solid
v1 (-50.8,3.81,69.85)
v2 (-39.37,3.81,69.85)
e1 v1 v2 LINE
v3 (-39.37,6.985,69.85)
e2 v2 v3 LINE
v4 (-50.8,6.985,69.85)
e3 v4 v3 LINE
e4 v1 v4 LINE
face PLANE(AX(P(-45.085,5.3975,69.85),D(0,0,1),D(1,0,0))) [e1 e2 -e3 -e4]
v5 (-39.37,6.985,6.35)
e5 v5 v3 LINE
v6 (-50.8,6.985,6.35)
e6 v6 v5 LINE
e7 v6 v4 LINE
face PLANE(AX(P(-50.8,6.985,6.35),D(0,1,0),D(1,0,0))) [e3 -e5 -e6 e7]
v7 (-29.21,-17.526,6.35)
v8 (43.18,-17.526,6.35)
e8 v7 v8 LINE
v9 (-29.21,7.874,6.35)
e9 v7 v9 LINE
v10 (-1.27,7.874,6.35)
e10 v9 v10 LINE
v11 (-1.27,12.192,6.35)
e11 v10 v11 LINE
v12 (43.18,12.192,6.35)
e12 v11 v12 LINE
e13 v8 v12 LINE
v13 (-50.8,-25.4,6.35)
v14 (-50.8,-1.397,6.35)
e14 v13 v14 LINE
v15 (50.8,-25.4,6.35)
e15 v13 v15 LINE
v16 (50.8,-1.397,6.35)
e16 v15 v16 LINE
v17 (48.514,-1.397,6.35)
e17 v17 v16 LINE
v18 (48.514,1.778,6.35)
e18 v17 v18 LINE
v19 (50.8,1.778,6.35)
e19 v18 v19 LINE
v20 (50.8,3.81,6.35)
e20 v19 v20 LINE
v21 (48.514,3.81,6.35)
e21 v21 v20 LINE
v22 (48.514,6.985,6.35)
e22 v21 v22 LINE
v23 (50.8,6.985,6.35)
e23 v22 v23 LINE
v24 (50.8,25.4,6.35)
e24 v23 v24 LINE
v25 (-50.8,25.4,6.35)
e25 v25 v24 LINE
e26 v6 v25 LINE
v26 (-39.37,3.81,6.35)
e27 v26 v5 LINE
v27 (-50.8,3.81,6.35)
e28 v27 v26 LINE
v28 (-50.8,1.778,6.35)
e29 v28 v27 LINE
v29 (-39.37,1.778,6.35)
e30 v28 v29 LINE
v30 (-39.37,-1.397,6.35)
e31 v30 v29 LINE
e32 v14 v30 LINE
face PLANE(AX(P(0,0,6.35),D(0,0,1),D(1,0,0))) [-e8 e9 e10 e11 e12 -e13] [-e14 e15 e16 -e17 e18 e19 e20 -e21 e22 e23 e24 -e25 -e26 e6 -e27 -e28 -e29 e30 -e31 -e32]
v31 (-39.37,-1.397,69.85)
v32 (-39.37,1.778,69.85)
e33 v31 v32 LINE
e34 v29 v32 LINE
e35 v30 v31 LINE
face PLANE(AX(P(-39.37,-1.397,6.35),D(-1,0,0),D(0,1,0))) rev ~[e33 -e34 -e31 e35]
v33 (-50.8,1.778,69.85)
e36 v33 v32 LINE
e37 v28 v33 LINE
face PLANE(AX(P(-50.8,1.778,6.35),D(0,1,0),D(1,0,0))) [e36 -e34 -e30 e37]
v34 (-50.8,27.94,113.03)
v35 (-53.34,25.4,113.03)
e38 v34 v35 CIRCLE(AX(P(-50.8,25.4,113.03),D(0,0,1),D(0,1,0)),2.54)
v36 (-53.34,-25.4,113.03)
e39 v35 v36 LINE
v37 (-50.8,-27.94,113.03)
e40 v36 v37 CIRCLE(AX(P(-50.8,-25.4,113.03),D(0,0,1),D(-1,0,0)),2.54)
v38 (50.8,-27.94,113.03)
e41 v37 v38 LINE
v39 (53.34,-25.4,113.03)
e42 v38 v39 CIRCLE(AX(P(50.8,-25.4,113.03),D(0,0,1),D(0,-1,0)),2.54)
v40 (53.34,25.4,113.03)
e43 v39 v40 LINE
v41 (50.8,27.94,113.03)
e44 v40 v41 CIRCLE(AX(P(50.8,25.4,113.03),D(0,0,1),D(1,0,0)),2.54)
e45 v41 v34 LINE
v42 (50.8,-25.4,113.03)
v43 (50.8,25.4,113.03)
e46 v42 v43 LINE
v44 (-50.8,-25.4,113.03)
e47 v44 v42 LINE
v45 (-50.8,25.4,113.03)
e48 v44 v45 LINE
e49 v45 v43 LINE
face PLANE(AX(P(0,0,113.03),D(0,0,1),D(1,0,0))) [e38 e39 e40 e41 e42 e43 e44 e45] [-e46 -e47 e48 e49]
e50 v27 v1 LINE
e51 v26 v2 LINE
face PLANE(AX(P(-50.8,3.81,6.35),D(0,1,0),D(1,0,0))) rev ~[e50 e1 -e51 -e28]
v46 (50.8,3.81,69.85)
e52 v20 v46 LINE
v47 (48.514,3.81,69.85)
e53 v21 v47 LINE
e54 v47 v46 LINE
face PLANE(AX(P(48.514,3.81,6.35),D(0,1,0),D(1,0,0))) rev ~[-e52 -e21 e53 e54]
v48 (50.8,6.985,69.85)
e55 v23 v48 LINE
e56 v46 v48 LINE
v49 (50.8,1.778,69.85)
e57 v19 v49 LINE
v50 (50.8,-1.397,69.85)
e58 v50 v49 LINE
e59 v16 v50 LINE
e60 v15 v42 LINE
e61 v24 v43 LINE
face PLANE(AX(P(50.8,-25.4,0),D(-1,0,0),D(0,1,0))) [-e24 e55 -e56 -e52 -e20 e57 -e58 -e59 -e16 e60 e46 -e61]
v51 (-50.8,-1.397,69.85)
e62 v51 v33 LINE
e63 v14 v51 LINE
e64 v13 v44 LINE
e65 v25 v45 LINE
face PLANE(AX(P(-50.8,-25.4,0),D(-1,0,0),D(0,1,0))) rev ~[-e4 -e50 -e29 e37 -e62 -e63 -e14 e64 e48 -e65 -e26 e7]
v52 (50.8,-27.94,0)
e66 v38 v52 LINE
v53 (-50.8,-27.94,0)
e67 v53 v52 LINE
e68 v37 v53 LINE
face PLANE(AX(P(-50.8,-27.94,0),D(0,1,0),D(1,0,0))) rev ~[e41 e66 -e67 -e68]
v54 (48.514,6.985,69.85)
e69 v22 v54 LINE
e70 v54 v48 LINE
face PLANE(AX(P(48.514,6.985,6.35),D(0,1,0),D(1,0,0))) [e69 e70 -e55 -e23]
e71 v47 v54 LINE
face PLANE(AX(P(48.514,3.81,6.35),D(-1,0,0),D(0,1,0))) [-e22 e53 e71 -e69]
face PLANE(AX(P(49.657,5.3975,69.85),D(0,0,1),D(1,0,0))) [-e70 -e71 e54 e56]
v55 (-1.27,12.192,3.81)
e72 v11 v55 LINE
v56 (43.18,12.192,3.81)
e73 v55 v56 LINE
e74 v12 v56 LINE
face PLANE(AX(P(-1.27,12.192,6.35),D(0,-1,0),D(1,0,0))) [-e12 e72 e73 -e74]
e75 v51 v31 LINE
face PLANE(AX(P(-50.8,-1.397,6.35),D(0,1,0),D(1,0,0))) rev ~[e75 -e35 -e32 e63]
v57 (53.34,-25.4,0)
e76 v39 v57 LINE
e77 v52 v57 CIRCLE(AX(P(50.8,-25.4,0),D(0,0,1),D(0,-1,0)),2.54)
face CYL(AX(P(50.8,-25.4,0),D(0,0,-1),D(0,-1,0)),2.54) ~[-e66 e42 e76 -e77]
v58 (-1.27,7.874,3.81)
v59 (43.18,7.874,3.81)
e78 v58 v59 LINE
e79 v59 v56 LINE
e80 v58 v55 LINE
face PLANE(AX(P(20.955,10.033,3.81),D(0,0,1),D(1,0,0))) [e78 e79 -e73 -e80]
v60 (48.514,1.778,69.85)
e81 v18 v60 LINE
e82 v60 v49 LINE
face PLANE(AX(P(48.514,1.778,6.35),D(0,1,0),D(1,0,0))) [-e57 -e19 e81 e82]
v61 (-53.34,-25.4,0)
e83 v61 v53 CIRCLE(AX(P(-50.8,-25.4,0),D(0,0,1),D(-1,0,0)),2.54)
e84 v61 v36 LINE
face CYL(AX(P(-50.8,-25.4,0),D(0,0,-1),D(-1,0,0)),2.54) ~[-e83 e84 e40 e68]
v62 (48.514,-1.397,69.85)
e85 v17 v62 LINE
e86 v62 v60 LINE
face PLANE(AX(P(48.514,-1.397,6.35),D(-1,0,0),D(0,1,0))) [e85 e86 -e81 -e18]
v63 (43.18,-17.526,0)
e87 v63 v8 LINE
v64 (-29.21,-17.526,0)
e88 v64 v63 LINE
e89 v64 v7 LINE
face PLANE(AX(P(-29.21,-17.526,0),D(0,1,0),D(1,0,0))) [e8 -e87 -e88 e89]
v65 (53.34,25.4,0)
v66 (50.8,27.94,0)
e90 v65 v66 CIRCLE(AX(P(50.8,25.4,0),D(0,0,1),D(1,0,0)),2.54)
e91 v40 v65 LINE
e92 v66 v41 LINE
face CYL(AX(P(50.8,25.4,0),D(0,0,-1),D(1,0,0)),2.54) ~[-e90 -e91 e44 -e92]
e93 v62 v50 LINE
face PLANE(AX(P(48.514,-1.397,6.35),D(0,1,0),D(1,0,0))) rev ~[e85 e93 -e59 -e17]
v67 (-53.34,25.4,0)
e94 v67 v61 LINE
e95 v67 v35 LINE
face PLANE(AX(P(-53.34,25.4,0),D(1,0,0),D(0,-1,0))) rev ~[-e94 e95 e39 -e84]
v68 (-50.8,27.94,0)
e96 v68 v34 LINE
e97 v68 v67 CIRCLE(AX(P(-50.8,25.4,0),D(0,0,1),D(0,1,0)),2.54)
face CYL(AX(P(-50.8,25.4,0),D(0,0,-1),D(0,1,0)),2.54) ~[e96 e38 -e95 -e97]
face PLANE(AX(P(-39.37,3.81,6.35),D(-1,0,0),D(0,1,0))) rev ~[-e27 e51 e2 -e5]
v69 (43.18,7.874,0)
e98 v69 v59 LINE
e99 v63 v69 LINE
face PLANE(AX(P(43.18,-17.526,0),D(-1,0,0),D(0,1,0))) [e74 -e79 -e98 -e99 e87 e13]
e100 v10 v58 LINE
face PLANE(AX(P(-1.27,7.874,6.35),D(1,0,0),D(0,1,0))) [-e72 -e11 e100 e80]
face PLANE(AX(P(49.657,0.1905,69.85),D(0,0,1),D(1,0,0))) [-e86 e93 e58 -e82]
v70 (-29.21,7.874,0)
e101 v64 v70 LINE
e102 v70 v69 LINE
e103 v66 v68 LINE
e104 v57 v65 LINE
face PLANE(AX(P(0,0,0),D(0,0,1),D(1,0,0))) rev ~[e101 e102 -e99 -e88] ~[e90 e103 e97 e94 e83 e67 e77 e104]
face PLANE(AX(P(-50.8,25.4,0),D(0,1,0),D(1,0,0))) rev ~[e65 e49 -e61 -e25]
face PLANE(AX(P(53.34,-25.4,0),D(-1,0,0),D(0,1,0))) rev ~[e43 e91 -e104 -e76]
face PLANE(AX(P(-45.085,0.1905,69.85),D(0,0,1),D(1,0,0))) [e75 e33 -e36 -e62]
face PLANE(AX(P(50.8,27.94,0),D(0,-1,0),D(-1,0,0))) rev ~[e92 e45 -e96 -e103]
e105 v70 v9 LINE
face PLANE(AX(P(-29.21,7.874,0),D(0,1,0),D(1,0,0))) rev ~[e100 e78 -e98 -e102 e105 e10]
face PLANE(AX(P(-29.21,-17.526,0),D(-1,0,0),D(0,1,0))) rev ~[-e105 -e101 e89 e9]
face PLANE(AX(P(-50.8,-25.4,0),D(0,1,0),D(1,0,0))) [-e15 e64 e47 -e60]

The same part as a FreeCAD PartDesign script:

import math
import FreeCAD as App
import Part
import Sketcher
Q = App.Units.Quantity

doc = App.newDocument("Part")
params = doc.addObject("Spreadsheet::Sheet", "Params")
for row, (alias, value) in enumerate([
    ("sketch1_radius", "0.1 in"),
    ("sketch1_width", "4 in"),
    ("sketch1_height", "2 in"),
    ("pad1_length", "4.45 in"),
    ("sketch2_radius", "0.1 in"),
    ("sketch2_width", "4 in"),
    ("sketch2_height", "2 in"),
    ("sketch2_height2", "1 in"),
    ("sketch2_width2", "2.85 in"),
    ("pad2_length", "0.25 in"),
    ("sketch3_width", "1.75 in"),
    ("sketch3_height", "0.17 in"),
    ("pocket1_length", "0.1 in"),
    ("sketch4_width", "0.45 in"),
    ("sketch4_height", "0.125 in"),
    ("pad3_length", "2.5 in"),
    ("sketch5_width", "0.09 in"),
    ("sketch5_height", "0.125 in"),
    ("pad4_length", "2.5 in"),
], start=1):
    params.set(f"A{row}", alias)
    params.set(f"B{row}", "=" + value)
    params.setAlias(f"B{row}", alias)

body = doc.addObject("PartDesign::Body", "Body")

sketch1 = body.newObject("Sketcher::SketchObject", "Sketch")
sketch1.AttachmentSupport = (doc.getObject("XY_Plane"), [""])
sketch1.MapMode = "FlatFace"
sketch1.addGeometry([
    Part.ArcOfCircle(Part.Circle(App.Vector(50.8, 25.4, 0), App.Vector(0, 0, 1), 2.5), math.radians(0), math.radians(90)),
    Part.LineSegment(App.Vector(50.8, 27.9, 0), App.Vector(-50.8, 27.9, 0)),
    Part.ArcOfCircle(Part.Circle(App.Vector(-50.8, 25.4, 0), App.Vector(0, 0, 1), 2.5), math.radians(90), math.radians(180)),
    Part.LineSegment(App.Vector(-53.3, 25.4, 0), App.Vector(-53.3, -25.4, 0)),
    Part.ArcOfCircle(Part.Circle(App.Vector(-50.8, -25.4, 0), App.Vector(0, 0, 1), 2.5), math.radians(180), math.radians(270)),
    Part.LineSegment(App.Vector(-50.8, -27.9, 0), App.Vector(50.8, -27.9, 0)),
    Part.ArcOfCircle(Part.Circle(App.Vector(50.8, -25.4, 0), App.Vector(0, 0, 1), 2.5), math.radians(-90), math.radians(0)),
    Part.LineSegment(App.Vector(53.3, -25.4, 0), App.Vector(53.3, 25.4, 0)),
    Part.LineSegment(App.Vector(50.8, -25.4, 0), App.Vector(-50.8, -25.4, 0)),
    Part.LineSegment(App.Vector(-50.8, -25.4, 0), App.Vector(-50.8, 25.4, 0)),
    Part.LineSegment(App.Vector(-50.8, 25.4, 0), App.Vector(50.8, 25.4, 0)),
    Part.LineSegment(App.Vector(50.8, 25.4, 0), App.Vector(50.8, -25.4, 0)),
], False)
sketch1.addConstraint([
    Sketcher.Constraint("Tangent", 0, 2, 1, 1),
    Sketcher.Constraint("Tangent", 1, 2, 2, 1),
    Sketcher.Constraint("Tangent", 2, 2, 3, 1),
    Sketcher.Constraint("Tangent", 3, 2, 4, 1),
    Sketcher.Constraint("Tangent", 4, 2, 5, 1),
    Sketcher.Constraint("Tangent", 5, 2, 6, 1),
    Sketcher.Constraint("Tangent", 6, 2, 7, 1),
    Sketcher.Constraint("Tangent", 7, 2, 0, 1),
    Sketcher.Constraint("Coincident", 8, 2, 9, 1),
    Sketcher.Constraint("Coincident", 9, 2, 10, 1),
    Sketcher.Constraint("Coincident", 10, 2, 11, 1),
    Sketcher.Constraint("Coincident", 11, 2, 8, 1),
    Sketcher.Constraint("Horizontal", 1),
    Sketcher.Constraint("Vertical", 3),
    Sketcher.Constraint("Horizontal", 5),
    Sketcher.Constraint("Vertical", 7),
    Sketcher.Constraint("Horizontal", 8),
    Sketcher.Constraint("Vertical", 9),
    Sketcher.Constraint("Horizontal", 10),
    Sketcher.Constraint("Vertical", 11),
    Sketcher.Constraint("Coincident", 8, 2, 4, 3),
    Sketcher.Constraint("Coincident", 9, 2, 2, 3),
    Sketcher.Constraint("Coincident", 10, 2, 0, 3),
    Sketcher.Constraint("Equal", 4, 6),
    Sketcher.Constraint("Symmetric", 0, 3, 4, 3, -1, 1),
    Sketcher.Constraint("Radius", 0, Q("0.1 in")),
    Sketcher.Constraint("DistanceX", 1, 2, 1, 1, Q("4 in")),
    Sketcher.Constraint("DistanceY", 3, 2, 3, 1, Q("2 in")),
])
sketch1.setExpression("Constraints[25]", "Params.sketch1_radius")
sketch1.setExpression("Constraints[26]", "Params.sketch1_width")
sketch1.setExpression("Constraints[27]", "Params.sketch1_height")
pad1 = body.newObject("PartDesign::Pad", "Pad")
pad1.Profile = sketch1
pad1.setExpression("Length", "Params.pad1_length")

sketch2 = body.newObject("Sketcher::SketchObject", "Sketch001")
sketch2.AttachmentSupport = (doc.getObject("XY_Plane"), [""])
sketch2.MapMode = "FlatFace"
sketch2.addGeometry([
    Part.ArcOfCircle(Part.Circle(App.Vector(50.8, 25.4, 0), App.Vector(0, 0, 1), 2.5), math.radians(0), math.radians(90)),
    Part.LineSegment(App.Vector(50.8, 27.9, 0), App.Vector(-50.8, 27.9, 0)),
    Part.ArcOfCircle(Part.Circle(App.Vector(-50.8, 25.4, 0), App.Vector(0, 0, 1), 2.5), math.radians(90), math.radians(180)),
    Part.LineSegment(App.Vector(-53.3, 25.4, 0), App.Vector(-53.3, -25.4, 0)),
    Part.ArcOfCircle(Part.Circle(App.Vector(-50.8, -25.4, 0), App.Vector(0, 0, 1), 2.5), math.radians(180), math.radians(270)),
    Part.LineSegment(App.Vector(-50.8, -27.9, 0), App.Vector(50.8, -27.9, 0)),
    Part.ArcOfCircle(Part.Circle(App.Vector(50.8, -25.4, 0), App.Vector(0, 0, 1), 2.5), math.radians(-90), math.radians(0)),
    Part.LineSegment(App.Vector(53.3, -25.4, 0), App.Vector(53.3, 25.4, 0)),
    Part.LineSegment(App.Vector(43.2, -17.5, 0), App.Vector(-29.2, -17.5, 0)),
    Part.LineSegment(App.Vector(-29.2, -17.5, 0), App.Vector(-29.2, 7.9, 0)),
    Part.LineSegment(App.Vector(-29.2, 7.9, 0), App.Vector(43.2, 7.9, 0)),
    Part.LineSegment(App.Vector(43.2, 7.9, 0), App.Vector(43.2, -17.5, 0)),
], False)
sketch2.addConstraint([
    Sketcher.Constraint("Tangent", 0, 2, 1, 1),
    Sketcher.Constraint("Tangent", 1, 2, 2, 1),
    Sketcher.Constraint("Tangent", 2, 2, 3, 1),
    Sketcher.Constraint("Tangent", 3, 2, 4, 1),
    Sketcher.Constraint("Tangent", 4, 2, 5, 1),
    Sketcher.Constraint("Tangent", 5, 2, 6, 1),
    Sketcher.Constraint("Tangent", 6, 2, 7, 1),
    Sketcher.Constraint("Tangent", 7, 2, 0, 1),
    Sketcher.Constraint("Coincident", 8, 2, 9, 1),
    Sketcher.Constraint("Coincident", 9, 2, 10, 1),
    Sketcher.Constraint("Coincident", 10, 2, 11, 1),
    Sketcher.Constraint("Coincident", 11, 2, 8, 1),
    Sketcher.Constraint("Horizontal", 1),
    Sketcher.Constraint("Vertical", 3),
    Sketcher.Constraint("Horizontal", 5),
    Sketcher.Constraint("Vertical", 7),
    Sketcher.Constraint("Horizontal", 8),
    Sketcher.Constraint("Vertical", 9),
    Sketcher.Constraint("Horizontal", 10),
    Sketcher.Constraint("Vertical", 11),
    Sketcher.Constraint("Equal", 0, 2),
    Sketcher.Constraint("Equal", 2, 4),
    Sketcher.Constraint("Equal", 4, 6),
    Sketcher.Constraint("Symmetric", 0, 3, 4, 3, -1, 1),
    Sketcher.Constraint("Radius", 0, Q("0.1 in")),
    Sketcher.Constraint("DistanceX", 1, 2, 1, 1, Q("4 in")),
    Sketcher.Constraint("DistanceY", 3, 2, 3, 1, Q("2 in")),
    Sketcher.Constraint("DistanceY", 9, 1, 9, 2, Q("1 in")),
    Sketcher.Constraint("DistanceX", 8, 2, 8, 1, Q("2.85 in")),
    Sketcher.Constraint("DistanceX", -1, 1, 10, 2, Q("1.7 in")),
    Sketcher.Constraint("DistanceY", 8, 2, -1, 1, Q("0.69 in")),
])
sketch2.setExpression("Constraints[24]", "Params.sketch2_radius")
sketch2.setExpression("Constraints[25]", "Params.sketch2_width")
sketch2.setExpression("Constraints[26]", "Params.sketch2_height")
sketch2.setExpression("Constraints[27]", "Params.sketch2_height2")
sketch2.setExpression("Constraints[28]", "Params.sketch2_width2")
pad2 = body.newObject("PartDesign::Pad", "Pad001")
pad2.Profile = sketch2
pad2.setExpression("Length", "Params.pad2_length")

sketch3 = body.newObject("Sketcher::SketchObject", "Sketch002")
sketch3.AttachmentSupport = (doc.getObject("XY_Plane"), [""])
sketch3.MapMode = "FlatFace"
sketch3.AttachmentOffset = App.Placement(App.Vector(0, 0, 0.25 * 25.4), App.Rotation())
sketch3.addGeometry([
    Part.LineSegment(App.Vector(-1.3, 12.2, 0), App.Vector(-1.3, 7.9, 0)),
    Part.LineSegment(App.Vector(-1.3, 7.9, 0), App.Vector(43.2, 7.9, 0)),
    Part.LineSegment(App.Vector(43.2, 7.9, 0), App.Vector(43.2, 12.2, 0)),
    Part.LineSegment(App.Vector(43.2, 12.2, 0), App.Vector(-1.3, 12.2, 0)),
], False)
sketch3.addConstraint([
    Sketcher.Constraint("Coincident", 0, 2, 1, 1),
    Sketcher.Constraint("Coincident", 1, 2, 2, 1),
    Sketcher.Constraint("Coincident", 2, 2, 3, 1),
    Sketcher.Constraint("Coincident", 3, 2, 0, 1),
    Sketcher.Constraint("Vertical", 0),
    Sketcher.Constraint("Horizontal", 1),
    Sketcher.Constraint("Vertical", 2),
    Sketcher.Constraint("Horizontal", 3),
    Sketcher.Constraint("DistanceX", 1, 1, 1, 2, Q("1.75 in")),
    Sketcher.Constraint("DistanceY", 0, 2, 0, 1, Q("0.17 in")),
    Sketcher.Constraint("DistanceX", -1, 1, 1, 2, Q("1.7 in")),
    Sketcher.Constraint("DistanceY", -1, 1, 0, 2, Q("0.31 in")),
])
sketch3.setExpression("Constraints[8]", "Params.sketch3_width")
sketch3.setExpression("Constraints[9]", "Params.sketch3_height")
pocket1 = body.newObject("PartDesign::Pocket", "Pocket")
pocket1.Profile = sketch3
pocket1.setExpression("Length", "Params.pocket1_length")

sketch4 = body.newObject("Sketcher::SketchObject", "Sketch003")
sketch4.AttachmentSupport = (doc.getObject("XY_Plane"), [""])
sketch4.MapMode = "FlatFace"
sketch4.AttachmentOffset = App.Placement(App.Vector(0, 0, 0.25 * 25.4), App.Rotation())
sketch4.addGeometry([
    Part.LineSegment(App.Vector(-50.8, 7, 0), App.Vector(-50.8, 3.8, 0)),
    Part.LineSegment(App.Vector(-50.8, 3.8, 0), App.Vector(-39.4, 3.8, 0)),
    Part.LineSegment(App.Vector(-39.4, 3.8, 0), App.Vector(-39.4, 7, 0)),
    Part.LineSegment(App.Vector(-39.4, 7, 0), App.Vector(-50.8, 7, 0)),
    Part.LineSegment(App.Vector(-50.8, 1.8, 0), App.Vector(-50.8, -1.4, 0)),
    Part.LineSegment(App.Vector(-50.8, -1.4, 0), App.Vector(-39.4, -1.4, 0)),
    Part.LineSegment(App.Vector(-39.4, -1.4, 0), App.Vector(-39.4, 1.8, 0)),
    Part.LineSegment(App.Vector(-39.4, 1.8, 0), App.Vector(-50.8, 1.8, 0)),
], False)
sketch4.addConstraint([
    Sketcher.Constraint("Coincident", 0, 2, 1, 1),
    Sketcher.Constraint("Coincident", 1, 2, 2, 1),
    Sketcher.Constraint("Coincident", 2, 2, 3, 1),
    Sketcher.Constraint("Coincident", 3, 2, 0, 1),
    Sketcher.Constraint("Coincident", 4, 2, 5, 1),
    Sketcher.Constraint("Coincident", 5, 2, 6, 1),
    Sketcher.Constraint("Coincident", 6, 2, 7, 1),
    Sketcher.Constraint("Coincident", 7, 2, 4, 1),
    Sketcher.Constraint("Vertical", 0),
    Sketcher.Constraint("Horizontal", 1),
    Sketcher.Constraint("Vertical", 2),
    Sketcher.Constraint("Horizontal", 3),
    Sketcher.Constraint("Vertical", 4),
    Sketcher.Constraint("Horizontal", 5),
    Sketcher.Constraint("Vertical", 6),
    Sketcher.Constraint("Horizontal", 7),
    Sketcher.Constraint("Vertical", 3, 2, 4, 2),
    Sketcher.Constraint("Vertical", 2, 2, 5, 2),
    Sketcher.Constraint("Equal", 2, 4),
    Sketcher.Constraint("DistanceX", 0, 2, -1, 1, Q("2 in")),
    Sketcher.Constraint("DistanceX", 1, 1, 1, 2, Q("0.45 in")),
    Sketcher.Constraint("DistanceY", 0, 2, 0, 1, Q("0.125 in")),
    Sketcher.Constraint("DistanceY", -1, 1, 0, 2, Q("0.15 in")),
    Sketcher.Constraint("DistanceY", -1, 1, 6, 2, Q("0.07 in")),
])
sketch4.setExpression("Constraints[20]", "Params.sketch4_width")
sketch4.setExpression("Constraints[21]", "Params.sketch4_height")
pad3 = body.newObject("PartDesign::Pad", "Pad002")
pad3.Profile = sketch4
pad3.setExpression("Length", "Params.pad3_length")

sketch5 = body.newObject("Sketcher::SketchObject", "Sketch004")
sketch5.AttachmentSupport = (doc.getObject("XY_Plane"), [""])
sketch5.MapMode = "FlatFace"
sketch5.AttachmentOffset = App.Placement(App.Vector(0, 0, 0.25 * 25.4), App.Rotation())
sketch5.addGeometry([
    Part.LineSegment(App.Vector(48.5, 7, 0), App.Vector(48.5, 3.8, 0)),
    Part.LineSegment(App.Vector(48.5, 3.8, 0), App.Vector(50.8, 3.8, 0)),
    Part.LineSegment(App.Vector(50.8, 3.8, 0), App.Vector(50.8, 7, 0)),
    Part.LineSegment(App.Vector(50.8, 7, 0), App.Vector(48.5, 7, 0)),
    Part.LineSegment(App.Vector(48.5, 1.8, 0), App.Vector(48.5, -1.4, 0)),
    Part.LineSegment(App.Vector(48.5, -1.4, 0), App.Vector(50.8, -1.4, 0)),
    Part.LineSegment(App.Vector(50.8, -1.4, 0), App.Vector(50.8, 1.8, 0)),
    Part.LineSegment(App.Vector(50.8, 1.8, 0), App.Vector(48.5, 1.8, 0)),
], False)
sketch5.addConstraint([
    Sketcher.Constraint("Coincident", 0, 2, 1, 1),
    Sketcher.Constraint("Coincident", 1, 2, 2, 1),
    Sketcher.Constraint("Coincident", 2, 2, 3, 1),
    Sketcher.Constraint("Coincident", 3, 2, 0, 1),
    Sketcher.Constraint("Coincident", 4, 2, 5, 1),
    Sketcher.Constraint("Coincident", 5, 2, 6, 1),
    Sketcher.Constraint("Coincident", 6, 2, 7, 1),
    Sketcher.Constraint("Coincident", 7, 2, 4, 1),
    Sketcher.Constraint("Vertical", 0),
    Sketcher.Constraint("Horizontal", 1),
    Sketcher.Constraint("Vertical", 2),
    Sketcher.Constraint("Horizontal", 3),
    Sketcher.Constraint("Vertical", 4),
    Sketcher.Constraint("Horizontal", 5),
    Sketcher.Constraint("Vertical", 6),
    Sketcher.Constraint("Horizontal", 7),
    Sketcher.Constraint("Vertical", 3, 2, 4, 2),
    Sketcher.Constraint("Vertical", 2, 2, 5, 2),
    Sketcher.Constraint("Equal", 2, 4),
    Sketcher.Constraint("DistanceX", -1, 1, 1, 2, Q("2 in")),
    Sketcher.Constraint("DistanceX", 1, 1, 1, 2, Q("0.09 in")),
    Sketcher.Constraint("DistanceY", 0, 2, 0, 1, Q("0.125 in")),
    Sketcher.Constraint("DistanceY", -1, 1, 0, 2, Q("0.15 in")),
    Sketcher.Constraint("DistanceY", -1, 1, 6, 2, Q("0.07 in")),
])
sketch5.setExpression("Constraints[20]", "Params.sketch5_width")
sketch5.setExpression("Constraints[21]", "Params.sketch5_height")
pad4 = body.newObject("PartDesign::Pad", "Pad003")
pad4.Profile = sketch5
pad4.setExpression("Length", "Params.pad4_length")

doc.recompute()
